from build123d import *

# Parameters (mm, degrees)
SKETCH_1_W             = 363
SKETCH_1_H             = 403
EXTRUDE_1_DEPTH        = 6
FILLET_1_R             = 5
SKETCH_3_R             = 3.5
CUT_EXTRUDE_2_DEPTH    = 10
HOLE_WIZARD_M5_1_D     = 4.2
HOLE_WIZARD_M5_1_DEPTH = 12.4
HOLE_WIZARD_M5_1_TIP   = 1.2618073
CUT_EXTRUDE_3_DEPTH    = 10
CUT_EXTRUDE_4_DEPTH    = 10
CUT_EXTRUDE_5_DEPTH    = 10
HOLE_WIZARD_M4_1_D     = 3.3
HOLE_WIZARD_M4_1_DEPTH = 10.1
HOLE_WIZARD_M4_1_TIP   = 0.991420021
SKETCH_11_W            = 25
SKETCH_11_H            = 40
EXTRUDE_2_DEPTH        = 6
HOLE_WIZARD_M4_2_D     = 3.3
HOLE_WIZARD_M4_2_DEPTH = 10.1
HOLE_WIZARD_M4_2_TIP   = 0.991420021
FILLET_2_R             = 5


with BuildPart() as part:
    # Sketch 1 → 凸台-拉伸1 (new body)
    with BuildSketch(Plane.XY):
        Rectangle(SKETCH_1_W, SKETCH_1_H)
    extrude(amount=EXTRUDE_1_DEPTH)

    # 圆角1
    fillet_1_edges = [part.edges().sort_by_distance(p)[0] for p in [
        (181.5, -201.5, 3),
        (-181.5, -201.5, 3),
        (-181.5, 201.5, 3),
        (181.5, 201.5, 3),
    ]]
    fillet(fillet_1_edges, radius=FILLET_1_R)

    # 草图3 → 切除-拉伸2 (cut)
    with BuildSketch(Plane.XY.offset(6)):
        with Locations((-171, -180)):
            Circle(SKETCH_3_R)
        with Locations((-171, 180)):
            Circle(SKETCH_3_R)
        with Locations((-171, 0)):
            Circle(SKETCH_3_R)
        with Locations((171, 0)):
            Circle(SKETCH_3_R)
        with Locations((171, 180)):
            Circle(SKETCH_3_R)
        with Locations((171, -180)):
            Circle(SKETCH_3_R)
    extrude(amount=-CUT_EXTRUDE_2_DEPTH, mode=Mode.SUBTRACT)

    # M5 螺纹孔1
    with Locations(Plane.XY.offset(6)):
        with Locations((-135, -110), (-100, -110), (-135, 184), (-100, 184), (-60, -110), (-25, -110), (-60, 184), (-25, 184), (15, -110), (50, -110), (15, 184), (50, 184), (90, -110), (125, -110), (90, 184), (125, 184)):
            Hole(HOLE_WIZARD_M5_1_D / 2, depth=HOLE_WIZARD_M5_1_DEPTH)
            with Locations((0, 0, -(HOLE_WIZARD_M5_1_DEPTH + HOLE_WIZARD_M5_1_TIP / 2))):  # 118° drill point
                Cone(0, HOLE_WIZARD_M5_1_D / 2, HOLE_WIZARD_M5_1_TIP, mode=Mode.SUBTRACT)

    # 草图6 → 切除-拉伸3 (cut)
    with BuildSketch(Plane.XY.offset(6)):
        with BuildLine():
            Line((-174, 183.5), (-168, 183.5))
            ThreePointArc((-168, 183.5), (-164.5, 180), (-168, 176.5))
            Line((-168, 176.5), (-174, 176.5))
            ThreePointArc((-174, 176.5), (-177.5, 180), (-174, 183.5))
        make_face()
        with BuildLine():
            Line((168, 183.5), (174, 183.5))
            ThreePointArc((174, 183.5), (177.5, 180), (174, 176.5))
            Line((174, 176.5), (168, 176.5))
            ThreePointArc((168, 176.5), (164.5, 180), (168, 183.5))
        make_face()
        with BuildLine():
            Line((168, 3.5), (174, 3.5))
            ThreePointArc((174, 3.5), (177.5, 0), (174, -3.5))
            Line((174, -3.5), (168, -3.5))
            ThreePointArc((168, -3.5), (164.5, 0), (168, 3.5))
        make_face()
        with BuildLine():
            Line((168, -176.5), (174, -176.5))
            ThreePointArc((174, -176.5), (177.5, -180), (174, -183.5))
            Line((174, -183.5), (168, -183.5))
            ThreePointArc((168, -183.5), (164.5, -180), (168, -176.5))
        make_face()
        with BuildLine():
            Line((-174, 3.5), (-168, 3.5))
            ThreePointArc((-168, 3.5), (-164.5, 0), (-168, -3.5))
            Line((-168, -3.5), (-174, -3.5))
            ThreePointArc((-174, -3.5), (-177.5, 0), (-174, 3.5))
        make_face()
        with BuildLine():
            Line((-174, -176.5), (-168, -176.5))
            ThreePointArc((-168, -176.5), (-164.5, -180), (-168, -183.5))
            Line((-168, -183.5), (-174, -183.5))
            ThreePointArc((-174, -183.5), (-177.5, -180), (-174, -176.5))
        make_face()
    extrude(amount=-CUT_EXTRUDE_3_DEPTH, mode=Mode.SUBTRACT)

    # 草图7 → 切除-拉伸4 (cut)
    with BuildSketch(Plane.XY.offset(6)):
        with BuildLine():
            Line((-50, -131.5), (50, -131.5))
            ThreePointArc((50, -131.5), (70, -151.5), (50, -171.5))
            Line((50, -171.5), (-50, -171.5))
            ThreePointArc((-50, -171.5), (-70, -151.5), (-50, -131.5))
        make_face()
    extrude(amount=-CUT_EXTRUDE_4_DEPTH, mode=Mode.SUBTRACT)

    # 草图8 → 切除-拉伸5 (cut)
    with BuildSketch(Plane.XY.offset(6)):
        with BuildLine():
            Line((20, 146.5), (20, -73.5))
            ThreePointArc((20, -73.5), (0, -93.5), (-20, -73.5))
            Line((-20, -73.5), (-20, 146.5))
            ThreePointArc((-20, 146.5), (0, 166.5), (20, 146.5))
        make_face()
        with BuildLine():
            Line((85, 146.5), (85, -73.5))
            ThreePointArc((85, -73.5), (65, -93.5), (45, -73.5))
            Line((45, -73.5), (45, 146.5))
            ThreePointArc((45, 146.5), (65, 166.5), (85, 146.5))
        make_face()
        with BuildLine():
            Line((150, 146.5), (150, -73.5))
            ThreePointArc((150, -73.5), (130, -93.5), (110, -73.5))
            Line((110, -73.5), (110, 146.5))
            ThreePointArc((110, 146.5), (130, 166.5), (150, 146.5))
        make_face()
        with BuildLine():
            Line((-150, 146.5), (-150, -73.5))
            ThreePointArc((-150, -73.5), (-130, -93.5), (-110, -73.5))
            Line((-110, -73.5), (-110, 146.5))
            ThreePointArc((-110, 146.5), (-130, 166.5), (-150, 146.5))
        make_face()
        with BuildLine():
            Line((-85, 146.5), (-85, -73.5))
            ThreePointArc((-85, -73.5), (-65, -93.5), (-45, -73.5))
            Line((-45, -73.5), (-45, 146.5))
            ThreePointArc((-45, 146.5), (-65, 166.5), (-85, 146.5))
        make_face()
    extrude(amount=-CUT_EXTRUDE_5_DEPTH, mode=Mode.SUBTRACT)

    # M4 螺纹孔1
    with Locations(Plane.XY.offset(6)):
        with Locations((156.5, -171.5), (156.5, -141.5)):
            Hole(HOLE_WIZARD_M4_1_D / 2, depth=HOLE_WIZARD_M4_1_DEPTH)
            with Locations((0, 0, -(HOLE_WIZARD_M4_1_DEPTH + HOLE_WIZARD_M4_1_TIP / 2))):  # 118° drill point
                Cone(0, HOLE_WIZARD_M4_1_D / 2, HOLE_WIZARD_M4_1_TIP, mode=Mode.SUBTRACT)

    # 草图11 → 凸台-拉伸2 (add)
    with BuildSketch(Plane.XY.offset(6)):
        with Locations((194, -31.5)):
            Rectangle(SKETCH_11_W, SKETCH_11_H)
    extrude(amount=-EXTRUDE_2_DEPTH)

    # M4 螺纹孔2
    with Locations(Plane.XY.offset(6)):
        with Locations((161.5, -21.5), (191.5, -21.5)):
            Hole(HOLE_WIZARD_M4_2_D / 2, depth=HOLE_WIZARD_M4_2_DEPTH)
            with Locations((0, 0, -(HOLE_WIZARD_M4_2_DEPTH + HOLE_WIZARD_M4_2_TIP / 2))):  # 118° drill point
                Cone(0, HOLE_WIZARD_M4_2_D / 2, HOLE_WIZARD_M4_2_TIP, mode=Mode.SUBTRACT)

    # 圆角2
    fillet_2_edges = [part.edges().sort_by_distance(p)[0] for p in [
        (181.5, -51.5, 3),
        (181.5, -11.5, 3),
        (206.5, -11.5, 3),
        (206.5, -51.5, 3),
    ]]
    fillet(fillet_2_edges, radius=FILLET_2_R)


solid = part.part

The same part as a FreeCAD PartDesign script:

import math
import FreeCAD as App
import Part
import Sketcher
Q = App.Units.Quantity


def edges_at(feature, points):
    """Names of the edges that pass closest to the given points."""
    edges = feature.Shape.Edges
    near = lambda p: min(range(len(edges)), key=lambda i: edges[i].distToShape(Part.Vertex(*p))[0])
    return sorted({f"Edge{near(p) + 1}" for p in points})

doc = App.newDocument("Part")
body = doc.addObject("PartDesign::Body", "Body")

# Sketch on XY plane
sketch1 = doc.addObject("Sketcher::SketchObject", "Sketch")
body.addObject(sketch1)
sketch1.AttachmentSupport = (doc.XY_Plane, [""])
sketch1.MapMode = "FlatFace"
sketch1.addGeometry([
    Part.LineSegment(App.Vector(-182, 202, 0), App.Vector(-182, -202, 0)),
    Part.LineSegment(App.Vector(-182, -202, 0), App.Vector(182, -202, 0)),
    Part.LineSegment(App.Vector(182, -202, 0), App.Vector(182, 202, 0)),
    Part.LineSegment(App.Vector(182, 202, 0), App.Vector(-182, 202, 0)),
], False)
sketch1.addConstraint([
    Sketcher.Constraint("Coincident", 0, 2, 1, 1),
    Sketcher.Constraint("Coincident", 1, 2, 2, 1),
    Sketcher.Constraint("Coincident", 2, 2, 3, 1),
    Sketcher.Constraint("Coincident", 3, 2, 0, 1),
    Sketcher.Constraint("Vertical", 0),
    Sketcher.Constraint("Horizontal", 1),
    Sketcher.Constraint("Vertical", 2),
    Sketcher.Constraint("Horizontal", 3),
    Sketcher.Constraint("Symmetric", 0, 2, 2, 2, -1, 1),
    Sketcher.Constraint("DistanceX", 1, 1, 1, 2, Q("363 mm")),
    Sketcher.Constraint("DistanceY", 0, 2, 0, 1, Q("403 mm")),
])
pad1 = doc.addObject("PartDesign::Pad", "Pad")
body.addObject(pad1)
pad1.Profile = sketch1
pad1.Length = 6
doc.recompute()

fillet = doc.addObject("PartDesign::Fillet", "Fillet")
body.addObject(fillet)
fillet.Base = (pad1, edges_at(pad1, [
    (181.5, -201.5, 3),
    (-181.5, -201.5, 3),
    (-181.5, 201.5, 3),
    (181.5, 201.5, 3),
]))
fillet.Radius = 5

# Sketch on XY plane
sketch2 = doc.addObject("Sketcher::SketchObject", "Sketch001")
body.addObject(sketch2)
sketch2.AttachmentSupport = (doc.XY_Plane, [""])
sketch2.MapMode = "FlatFace"
sketch2.AttachmentOffset = App.Placement(App.Vector(0, 0, 6), App.Rotation())
sketch2.addGeometry([
    Part.Circle(App.Vector(-171, -180, 0), App.Vector(0, 0, 1), 3.5),  # 0
    Part.Circle(App.Vector(-171, 180, 0), App.Vector(0, 0, 1), 3.5),  # 1
    Part.Circle(App.Vector(-171, 0, 0), App.Vector(0, 0, 1), 3.5),  # 2
    Part.Circle(App.Vector(171, 0, 0), App.Vector(0, 0, 1), 3.5),  # 3
    Part.Circle(App.Vector(171, 180, 0), App.Vector(0, 0, 1), 3.5),  # 4
    Part.Circle(App.Vector(171, -180, 0), App.Vector(0, 0, 1), 3.5),  # 5
], False)
sketch2.addConstraint([
    Sketcher.Constraint("Equal", 0, 1),
    Sketcher.Constraint("Equal", 1, 2),
    Sketcher.Constraint("Equal", 2, 3),
    Sketcher.Constraint("Equal", 3, 4),
    Sketcher.Constraint("Equal", 4, 5),
    Sketcher.Constraint("Symmetric", 2, 3, 3, 3, -1, 1),
    Sketcher.Constraint("Symmetric", 0, 3, 4, 3, -1, 1),
    Sketcher.Constraint("Symmetric", 1, 3, 5, 3, -1, 1),
    Sketcher.Constraint("Symmetric", 1, 3, 4, 3, -2),
    Sketcher.Constraint("PointOnObject", 2, 3, -1),
    Sketcher.Constraint("Vertical", 1, 3, 2, 3),
    Sketcher.Constraint("Diameter", 0, Q("7 mm")),
    Sketcher.Constraint("DistanceX", 0, 3, -1, 1, Q("171 mm")),
    Sketcher.Constraint("DistanceY", 0, 3, -1, 1, Q("180 mm")),
])
pocket1 = doc.addObject("PartDesign::Pocket", "Pocket")
body.addObject(pocket1)
pocket1.Profile = sketch2
pocket1.Length = 10

# Sketch on XY plane
sketch3 = doc.addObject("Sketcher::SketchObject", "Sketch002")
body.addObject(sketch3)
sketch3.AttachmentSupport = (doc.XY_Plane, [""])
sketch3.MapMode = "FlatFace"
sketch3.AttachmentOffset = App.Placement(App.Vector(0, 0, 6), App.Rotation())
sketch3.addGeometry([
    Part.Circle(App.Vector(-135, -110, 0), App.Vector(0, 0, 1), 2.1),  # 0
    Part.Circle(App.Vector(-100, -110, 0), App.Vector(0, 0, 1), 2.1),  # 1
    Part.Circle(App.Vector(-135, 184, 0), App.Vector(0, 0, 1), 2.1),  # 2
    Part.Circle(App.Vector(-100, 184, 0), App.Vector(0, 0, 1), 2.1),  # 3
    Part.Circle(App.Vector(-60, -110, 0), App.Vector(0, 0, 1), 2.1),  # 4
    Part.Circle(App.Vector(-25, -110, 0), App.Vector(0, 0, 1), 2.1),  # 5
    Part.Circle(App.Vector(-60, 184, 0), App.Vector(0, 0, 1), 2.1),  # 6
    Part.Circle(App.Vector(-25, 184, 0), App.Vector(0, 0, 1), 2.1),  # 7
    Part.Circle(App.Vector(15, -110, 0), App.Vector(0, 0, 1), 2.1),  # 8
    Part.Circle(App.Vector(50, -110, 0), App.Vector(0, 0, 1), 2.1),  # 9
    Part.Circle(App.Vector(15, 184, 0), App.Vector(0, 0, 1), 2.1),  # 10
    Part.Circle(App.Vector(50, 184, 0), App.Vector(0, 0, 1), 2.1),  # 11
    Part.Circle(App.Vector(90, -110, 0), App.Vector(0, 0, 1), 2.1),  # 12
    Part.Circle(App.Vector(125, -110, 0), App.Vector(0, 0, 1), 2.1),  # 13
    Part.Circle(App.Vector(90, 184, 0), App.Vector(0, 0, 1), 2.1),  # 14
    Part.Circle(App.Vector(125, 184, 0), App.Vector(0, 0, 1), 2.1),  # 15
], False)
sketch3.addConstraint([
    Sketcher.Constraint("Equal", 0, 1),
    Sketcher.Constraint("Equal", 1, 2),
    Sketcher.Constraint("Equal", 2, 3),
    Sketcher.Constraint("Equal", 3, 4),
    Sketcher.Constraint("Equal", 4, 5),
    Sketcher.Constraint("Equal", 5, 6),
    Sketcher.Constraint("Equal", 6, 7),
    Sketcher.Constraint("Equal", 7, 8),
    Sketcher.Constraint("Equal", 8, 9),
    Sketcher.Constraint("Equal", 9, 10),
    Sketcher.Constraint("Equal", 10, 11),
    Sketcher.Constraint("Equal", 11, 12),
    Sketcher.Constraint("Equal", 12, 13),
    Sketcher.Constraint("Equal", 13, 14),
    Sketcher.Constraint("Equal", 14, 15),
    Sketcher.Constraint("Horizontal", 0, 3, 1, 3),
    Sketcher.Constraint("Horizontal", 2, 3, 3, 3),
    Sketcher.Constraint("Horizontal", 1, 3, 4, 3),
    Sketcher.Constraint("Horizontal", 4, 3, 5, 3),
    Sketcher.Constraint("Horizontal", 3, 3, 6, 3),
    Sketcher.Constraint("Horizontal", 6, 3, 7, 3),
    Sketcher.Constraint("Horizontal", 5, 3, 8, 3),
    Sketcher.Constraint("Horizontal", 8, 3, 9, 3),
    Sketcher.Constraint("Horizontal", 7, 3, 10, 3),
    Sketcher.Constraint("Horizontal", 10, 3, 11, 3),
    Sketcher.Constraint("Horizontal", 9, 3, 12, 3),
    Sketcher.Constraint("Horizontal", 12, 3, 13, 3),
    Sketcher.Constraint("Horizontal", 11, 3, 14, 3),
    Sketcher.Constraint("Horizontal", 14, 3, 15, 3),
    Sketcher.Constraint("Vertical", 0, 3, 2, 3),
    Sketcher.Constraint("Vertical", 1, 3, 3, 3),
    Sketcher.Constraint("Vertical", 4, 3, 6, 3),
    Sketcher.Constraint("Vertical", 5, 3, 7, 3),
    Sketcher.Constraint("Vertical", 8, 3, 10, 3),
    Sketcher.Constraint("Vertical", 9, 3, 11, 3),
    Sketcher.Constraint("Vertical", 12, 3, 14, 3),
    Sketcher.Constraint("Vertical", 13, 3, 15, 3),
    Sketcher.Constraint("Diameter", 0, Q("4.2 mm")),
    Sketcher.Constraint("DistanceX", 0, 3, -1, 1, Q("135 mm")),
    Sketcher.Constraint("DistanceY", 0, 3, -1, 1, Q("110 mm")),
    Sketcher.Constraint("DistanceX", 1, 3, -1, 1, Q("100 mm")),
    Sketcher.Constraint("DistanceY", -1, 1, 2, 3, Q("184 mm")),
    Sketcher.Constraint("DistanceX", 4, 3, -1, 1, Q("60 mm")),
    Sketcher.Constraint("DistanceX", 5, 3, -1, 1, Q("25 mm")),
    Sketcher.Constraint("DistanceX", -1, 1, 8, 3, Q("15 mm")),
    Sketcher.Constraint("DistanceX", -1, 1, 9, 3, Q("50 mm")),
    Sketcher.Constraint("DistanceX", -1, 1, 12, 3, Q("90 mm")),
    Sketcher.Constraint("DistanceX", -1, 1, 13, 3, Q("125 mm")),
])
doc.recompute()
hole = doc.addObject("PartDesign::Hole", "Hole")
body.addObject(hole)
hole.Profile = sketch3
hole.ThreadType = "None"
hole.Diameter = 4.2
hole.DepthType = "Dimension"
hole.Depth = 12.4
hole.DrillPoint = "Angled"
hole.DrillPointAngle = 118

# Sketch on XY plane
sketch4 = doc.addObject("Sketcher::SketchObject", "Sketch003")
body.addObject(sketch4)
sketch4.AttachmentSupport = (doc.XY_Plane, [""])
sketch4.MapMode = "FlatFace"
sketch4.AttachmentOffset = App.Placement(App.Vector(0, 0, 6), App.Rotation())
sketch4.addGeometry([
    Part.LineSegment(App.Vector(-168, 183.5, 0), App.Vector(-174, 183.5, 0)),  # 0
    Part.ArcOfCircle(Part.Circle(App.Vector(-174, 180, 0), App.Vector(0, 0, 1), 3.5), math.radians(90), math.radians(270)),  # 1
    Part.LineSegment(App.Vector(-174, 176.5, 0), App.Vector(-168, 176.5, 0)),  # 2
    Part.ArcOfCircle(Part.Circle(App.Vector(-168, 180, 0), App.Vector(0, 0, 1), 3.5), math.radians(-90), math.radians(90)),  # 3
    Part.LineSegment(App.Vector(174, 183.5, 0), App.Vector(168, 183.5, 0)),  # 4
    Part.ArcOfCircle(Part.Circle(App.Vector(168, 180, 0), App.Vector(0, 0, 1), 3.5), math.radians(90), math.radians(270)),  # 5
    Part.LineSegment(App.Vector(168, 176.5, 0), App.Vector(174, 176.5, 0)),  # 6
    Part.ArcOfCircle(Part.Circle(App.Vector(174, 180, 0), App.Vector(0, 0, 1), 3.5), math.radians(-90), math.radians(90)),  # 7
    Part.LineSegment(App.Vector(174, 3.5, 0), App.Vector(168, 3.5, 0)),  # 8
    Part.ArcOfCircle(Part.Circle(App.Vector(168, 0, 0), App.Vector(0, 0, 1), 3.5), math.radians(90), math.radians(270)),  # 9
    Part.LineSegment(App.Vector(168, -3.5, 0), App.Vector(174, -3.5, 0)),  # 10
    Part.ArcOfCircle(Part.Circle(App.Vector(174, 0, 0), App.Vector(0, 0, 1), 3.5), math.radians(-90), math.radians(90)),  # 11
    Part.LineSegment(App.Vector(174, -176.5, 0), App.Vector(168, -176.5, 0)),  # 12
    Part.ArcOfCircle(Part.Circle(App.Vector(168, -180, 0), App.Vector(0, 0, 1), 3.5), math.radians(90), math.radians(270)),  # 13
    Part.LineSegment(App.Vector(168, -183.5, 0), App.Vector(174, -183.5, 0)),  # 14
    Part.ArcOfCircle(Part.Circle(App.Vector(174, -180, 0), App.Vector(0, 0, 1), 3.5), math.radians(-90), math.radians(90)),  # 15
    Part.LineSegment(App.Vector(-168, 3.5, 0), App.Vector(-174, 3.5, 0)),  # 16
    Part.ArcOfCircle(Part.Circle(App.Vector(-174, 0, 0), App.Vector(0, 0, 1), 3.5), math.radians(90), math.radians(270)),  # 17
    Part.LineSegment(App.Vector(-174, -3.5, 0), App.Vector(-168, -3.5, 0)),  # 18
    Part.ArcOfCircle(Part.Circle(App.Vector(-168, 0, 0), App.Vector(0, 0, 1), 3.5), math.radians(-90), math.radians(90)),  # 19
    Part.LineSegment(App.Vector(-168, -176.5, 0), App.Vector(-174, -176.5, 0)),  # 20
    Part.ArcOfCircle(Part.Circle(App.Vector(-174, -180, 0), App.Vector(0, 0, 1), 3.5), math.radians(90), math.radians(270)),  # 21
    Part.LineSegment(App.Vector(-174, -183.5, 0), App.Vector(-168, -183.5, 0)),  # 22
    Part.ArcOfCircle(Part.Circle(App.Vector(-168, -180, 0), App.Vector(0, 0, 1), 3.5), math.radians(-90), math.radians(90)),  # 23
], False)
sketch4.addConstraint([
    Sketcher.Constraint("Tangent", 0, 2, 1, 1),
    Sketcher.Constraint("Tangent", 1, 2, 2, 1),
    Sketcher.Constraint("Tangent", 2, 2, 3, 1),
    Sketcher.Constraint("Tangent", 3, 2, 0, 1),
    Sketcher.Constraint("Tangent", 4, 2, 5, 1),
    Sketcher.Constraint("Tangent", 5, 2, 6, 1),
    Sketcher.Constraint("Tangent", 6, 2, 7, 1),
    Sketcher.Constraint("Tangent", 7, 2, 4, 1),
    Sketcher.Constraint("Tangent", 8, 2, 9, 1),
    Sketcher.Constraint("Tangent", 9, 2, 10, 1),
    Sketcher.Constraint("Tangent", 10, 2, 11, 1),
    Sketcher.Constraint("Tangent", 11, 2, 8, 1),
    Sketcher.Constraint("Tangent", 12, 2, 13, 1),
    Sketcher.Constraint("Tangent", 13, 2, 14, 1),
    Sketcher.Constraint("Tangent", 14, 2, 15, 1),
    Sketcher.Constraint("Tangent", 15, 2, 12, 1),
    Sketcher.Constraint("Tangent", 16, 2, 17, 1),
    Sketcher.Constraint("Tangent", 17, 2, 18, 1),
    Sketcher.Constraint("Tangent", 18, 2, 19, 1),
    Sketcher.Constraint("Tangent", 19, 2, 16, 1),
    Sketcher.Constraint("Tangent", 20, 2, 21, 1),
    Sketcher.Constraint("Tangent", 21, 2, 22, 1),
    Sketcher.Constraint("Tangent", 22, 2, 23, 1),
    Sketcher.Constraint("Tangent", 23, 2, 20, 1),
    Sketcher.Constraint("Horizontal", 0),
    Sketcher.Constraint("Horizontal", 2),
    Sketcher.Constraint("Horizontal", 4),
    Sketcher.Constraint("Horizontal", 6),
    Sketcher.Constraint("Horizontal", 8),
    Sketcher.Constraint("Horizontal", 10),
    Sketcher.Constraint("Horizontal", 12),
    Sketcher.Constraint("Horizontal", 14),
    Sketcher.Constraint("Horizontal", 16),
    Sketcher.Constraint("Horizontal", 18),
    Sketcher.Constraint("Horizontal", 20),
    Sketcher.Constraint("Horizontal", 22),
    Sketcher.Constraint("Equal", 3, 5),
    Sketcher.Constraint("Equal", 7, 9),
    Sketcher.Constraint("Equal", 11, 13),
    Sketcher.Constraint("Equal", 15, 17),
    Sketcher.Constraint("Equal", 19, 21),
    Sketcher.Constraint("Symmetric", 3, 3, 13, 3, -1, 1),
    Sketcher.Constraint("Symmetric", 11, 3, 17, 3, -1, 1),
    Sketcher.Constraint("Symmetric", 7, 3, 21, 3, -1, 1),
    Sketcher.Constraint("Symmetric", 3, 3, 5, 3, -2),
    Sketcher.Constraint("Symmetric", 9, 3, 19, 3, -2),
    Sketcher.Constraint("Vertical", 5, 3, 9, 3),
    Sketcher.Constraint("Vertical", 7, 3, 11, 3),
    Sketcher.Constraint("Vertical", 11, 3, 15, 3),
    Sketcher.Constraint("Vertical", 1, 3, 17, 3),
    Sketcher.Constraint("Vertical", 19, 3, 23, 3),
    Sketcher.Constraint("Radius", 1, Q("3.5 mm")),
    Sketcher.Constraint("DistanceX", 0, 2, 0, 1, Q("6 mm")),
    Sketcher.Constraint("DistanceX", 1, 3, -1, 1, Q("174 mm")),
    Sketcher.Constraint("DistanceY", -1, 1, 1, 3, Q("180 mm")),
])
pocket2 = doc.addObject("PartDesign::Pocket", "Pocket001")
body.addObject(pocket2)
pocket2.Profile = sketch4
pocket2.Length = 10

# Sketch on XY plane
sketch5 = doc.addObject("Sketcher::SketchObject", "Sketch004")
body.addObject(sketch5)
sketch5.AttachmentSupport = (doc.XY_Plane, [""])
sketch5.MapMode = "FlatFace"
sketch5.AttachmentOffset = App.Placement(App.Vector(0, 0, 6), App.Rotation())
sketch5.addGeometry([
    Part.LineSegment(App.Vector(50, -132, 0), App.Vector(-50, -132, 0)),
    Part.ArcOfCircle(Part.Circle(App.Vector(-50, -152, 0), App.Vector(0, 0, 1), 20), math.radians(90), math.radians(270)),
    Part.LineSegment(App.Vector(-50, -172, 0), App.Vector(50, -172, 0)),
    Part.ArcOfCircle(Part.Circle(App.Vector(50, -152, 0), App.Vector(0, 0, 1), 20), math.radians(-90), math.radians(90)),
], False)
sketch5.addConstraint([
    Sketcher.Constraint("Tangent", 0, 2, 1, 1),
    Sketcher.Constraint("Tangent", 1, 2, 2, 1),
    Sketcher.Constraint("Tangent", 2, 2, 3, 1),
    Sketcher.Constraint("Tangent", 3, 2, 0, 1),
    Sketcher.Constraint("Horizontal", 0),
    Sketcher.Constraint("Horizontal", 2),
    Sketcher.Constraint("Radius", 1, Q("20 mm")),
    Sketcher.Constraint("DistanceX", 0, 2, 0, 1, Q("100 mm")),
    Sketcher.Constraint("DistanceX", 1, 3, -1, 1, Q("50 mm")),
    Sketcher.Constraint("DistanceY", 1, 3, -1, 1, Q("151.5 mm")),
])
pocket3 = doc.addObject("PartDesign::Pocket", "Pocket002")
body.addObject(pocket3)
pocket3.Profile = sketch5
pocket3.Length = 10

# Sketch on XY plane
sketch6 = doc.addObject("Sketcher::SketchObject", "Sketch005")
body.addObject(sketch6)
sketch6.AttachmentSupport = (doc.XY_Plane, [""])
sketch6.MapMode = "FlatFace"
sketch6.AttachmentOffset = App.Placement(App.Vector(0, 0, 6), App.Rotation())
sketch6.addGeometry([
    Part.LineSegment(App.Vector(20, -74, 0), App.Vector(20, 146, 0)),  # 0
    Part.ArcOfCircle(Part.Circle(App.Vector(0, 146, 0), App.Vector(0, 0, 1), 20), math.radians(0), math.radians(180)),  # 1
    Part.LineSegment(App.Vector(-20, 146, 0), App.Vector(-20, -74, 0)),  # 2
    Part.ArcOfCircle(Part.Circle(App.Vector(0, -74, 0), App.Vector(0, 0, 1), 20), math.radians(180), math.radians(360)),  # 3
    Part.LineSegment(App.Vector(85, -74, 0), App.Vector(85, 146, 0)),  # 4
    Part.ArcOfCircle(Part.Circle(App.Vector(65, 146, 0), App.Vector(0, 0, 1), 20), math.radians(0), math.radians(180)),  # 5
    Part.LineSegment(App.Vector(45, 146, 0), App.Vector(45, -74, 0)),  # 6
    Part.ArcOfCircle(Part.Circle(App.Vector(65, -74, 0), App.Vector(0, 0, 1), 20), math.radians(180), math.radians(360)),  # 7
    Part.LineSegment(App.Vector(150, -74, 0), App.Vector(150, 146, 0)),  # 8
    Part.ArcOfCircle(Part.Circle(App.Vector(130, 146, 0), App.Vector(0, 0, 1), 20), math.radians(0), math.radians(180)),  # 9
    Part.LineSegment(App.Vector(110, 146, 0), App.Vector(110, -74, 0)),  # 10
    Part.ArcOfCircle(Part.Circle(App.Vector(130, -74, 0), App.Vector(0, 0, 1), 20), math.radians(180), math.radians(360)),  # 11
    Part.LineSegment(App.Vector(-150, 146, 0), App.Vector(-150, -74, 0)),  # 12
    Part.ArcOfCircle(Part.Circle(App.Vector(-130, -74, 0), App.Vector(0, 0, 1), 20), math.radians(180), math.radians(360)),  # 13
    Part.LineSegment(App.Vector(-110, -74, 0), App.Vector(-110, 146, 0)),  # 14
    Part.ArcOfCircle(Part.Circle(App.Vector(-130, 146, 0), App.Vector(0, 0, 1), 20), math.radians(0), math.radians(180)),  # 15
    Part.LineSegment(App.Vector(-85, 146, 0), App.Vector(-85, -74, 0)),  # 16
    Part.ArcOfCircle(Part.Circle(App.Vector(-65, -74, 0), App.Vector(0, 0, 1), 20), math.radians(180), math.radians(360)),  # 17
    Part.LineSegment(App.Vector(-45, -74, 0), App.Vector(-45, 146, 0)),  # 18
    Part.ArcOfCircle(Part.Circle(App.Vector(-65, 146, 0), App.Vector(0, 0, 1), 20), math.radians(0), math.radians(180)),  # 19
], False)
sketch6.addConstraint([
    Sketcher.Constraint("Tangent", 0, 2, 1, 1),
    Sketcher.Constraint("Tangent", 1, 2, 2, 1),
    Sketcher.Constraint("Tangent", 2, 2, 3, 1),
    Sketcher.Constraint("Tangent", 3, 2, 0, 1),
    Sketcher.Constraint("Tangent", 4, 2, 5, 1),
    Sketcher.Constraint("Tangent", 5, 2, 6, 1),
    Sketcher.Constraint("Tangent", 6, 2, 7, 1),
    Sketcher.Constraint("Tangent", 7, 2, 4, 1),
    Sketcher.Constraint("Tangent", 8, 2, 9, 1),
    Sketcher.Constraint("Tangent", 9, 2, 10, 1),
    Sketcher.Constraint("Tangent", 10, 2, 11, 1),
    Sketcher.Constraint("Tangent", 11, 2, 8, 1),
    Sketcher.Constraint("Tangent", 12, 2, 13, 1),
    Sketcher.Constraint("Tangent", 13, 2, 14, 1),
    Sketcher.Constraint("Tangent", 14, 2, 15, 1),
    Sketcher.Constraint("Tangent", 15, 2, 12, 1),
    Sketcher.Constraint("Tangent", 16, 2, 17, 1),
    Sketcher.Constraint("Tangent", 17, 2, 18, 1),
    Sketcher.Constraint("Tangent", 18, 2, 19, 1),
    Sketcher.Constraint("Tangent", 19, 2, 16, 1),
    Sketcher.Constraint("Vertical", 0),
    Sketcher.Constraint("Vertical", 2),
    Sketcher.Constraint("Vertical", 4),
    Sketcher.Constraint("Vertical", 6),
    Sketcher.Constraint("Vertical", 8),
    Sketcher.Constraint("Vertical", 10),
    Sketcher.Constraint("Vertical", 12),
    Sketcher.Constraint("Vertical", 14),
    Sketcher.Constraint("Vertical", 16),
    Sketcher.Constraint("Vertical", 18),
    Sketcher.Constraint("Equal", 3, 5),
    Sketcher.Constraint("Equal", 7, 9),
    Sketcher.Constraint("Equal", 11, 13),
    Sketcher.Constraint("Equal", 15, 17),
    Sketcher.Constraint("Symmetric", 11, 3, 13, 3, -2),
    Sketcher.Constraint("Symmetric", 7, 3, 17, 3, -2),
    Sketcher.Constraint("PointOnObject", 1, 3, -2),
    Sketcher.Constraint("Horizontal", 1, 3, 5, 3),
    Sketcher.Constraint("Horizontal", 3, 3, 7, 3),
    Sketcher.Constraint("Horizontal", 5, 3, 9, 3),
    Sketcher.Constraint("Horizontal", 7, 3, 11, 3),
    Sketcher.Constraint("Horizontal", 9, 3, 15, 3),
    Sketcher.Constraint("Horizontal", 15, 3, 19, 3),
    Sketcher.Constraint("Radius", 1, Q("20 mm")),
    Sketcher.Constraint("DistanceY", 0, 1, 0, 2, Q("220 mm")),
    Sketcher.Constraint("DistanceX", -1, 1, 5, 3, Q("65 mm")),
    Sketcher.Constraint("DistanceX", -1, 1, 9, 3, Q("130 mm")),
    Sketcher.Constraint("DistanceY", -1, 1, 1, 3, Q("146.5 mm")),
])
pocket4 = doc.addObject("PartDesign::Pocket", "Pocket003")
body.addObject(pocket4)
pocket4.Profile = sketch6
pocket4.Length = 10

# Sketch on XY plane
sketch7 = doc.addObject("Sketcher::SketchObject", "Sketch006")
body.addObject(sketch7)
sketch7.AttachmentSupport = (doc.XY_Plane, [""])
sketch7.MapMode = "FlatFace"
sketch7.AttachmentOffset = App.Placement(App.Vector(0, 0, 6), App.Rotation())
sketch7.addGeometry([
    Part.Circle(App.Vector(156.5, -171.5, 0), App.Vector(0, 0, 1), 1.6),
    Part.Circle(App.Vector(156.5, -141.5, 0), App.Vector(0, 0, 1), 1.6),
], False)
sketch7.addConstraint([
    Sketcher.Constraint("Equal", 0, 1),
    Sketcher.Constraint("Vertical", 0, 3, 1, 3),
    Sketcher.Constraint("Diameter", 0, Q("3.3 mm")),
    Sketcher.Constraint("DistanceY", 0, 3, 1, 3, Q("30 mm")),
    Sketcher.Constraint("DistanceX", -1, 1, 0, 3, Q("156.5 mm")),
    Sketcher.Constraint("DistanceY", 0, 3, -1, 1, Q("171.5 mm")),
])
doc.recompute()
hole2 = doc.addObject("PartDesign::Hole", "Hole001")
body.addObject(hole2)
hole2.Profile = sketch7
hole2.ThreadType = "None"
hole2.Diameter = 3.3
hole2.DepthType = "Dimension"
hole2.Depth = 10.1
hole2.DrillPoint = "Angled"
hole2.DrillPointAngle = 118

# Sketch on XY plane
sketch8 = doc.addObject("Sketcher::SketchObject", "Sketch007")
body.addObject(sketch8)
sketch8.AttachmentSupport = (doc.XY_Plane, [""])
sketch8.MapMode = "FlatFace"
sketch8.AttachmentOffset = App.Placement(App.Vector(0, 0, 6), App.Rotation())
sketch8.addGeometry([
    Part.LineSegment(App.Vector(182, -12, 0), App.Vector(182, -52, 0)),
    Part.LineSegment(App.Vector(182, -52, 0), App.Vector(206, -52, 0)),
    Part.LineSegment(App.Vector(206, -52, 0), App.Vector(206, -12, 0)),
    Part.LineSegment(App.Vector(206, -12, 0), App.Vector(182, -12, 0)),
], False)
sketch8.addConstraint([
    Sketcher.Constraint("Coincident", 0, 2, 1, 1),
    Sketcher.Constraint("Coincident", 1, 2, 2, 1),
    Sketcher.Constraint("Coincident", 2, 2, 3, 1),
    Sketcher.Constraint("Coincident", 3, 2, 0, 1),
    Sketcher.Constraint("Vertical", 0),
    Sketcher.Constraint("Horizontal", 1),
    Sketcher.Constraint("Vertical", 2),
    Sketcher.Constraint("Horizontal", 3),
    Sketcher.Constraint("DistanceX", 1, 1, 1, 2, Q("25 mm")),
    Sketcher.Constraint("DistanceY", 0, 2, 0, 1, Q("40 mm")),
    Sketcher.Constraint("DistanceX", -1, 1, 0, 2, Q("181.5 mm")),
    Sketcher.Constraint("DistanceY", 0, 2, -1, 1, Q("51.5 mm")),
])
pad2 = doc.addObject("PartDesign::Pad", "Pad001")
body.addObject(pad2)
pad2.Profile = sketch8
pad2.Length = 6
pad2.Reversed = True

# Sketch on XY plane
sketch9 = doc.addObject("Sketcher::SketchObject", "Sketch008")
body.addObject(sketch9)
sketch9.AttachmentSupport = (doc.XY_Plane, [""])
sketch9.MapMode = "FlatFace"
sketch9.AttachmentOffset = App.Placement(App.Vector(0, 0, 6), App.Rotation())
sketch9.addGeometry([
    Part.Circle(App.Vector(161.5, -21.5, 0), App.Vector(0, 0, 1), 1.6),
    Part.Circle(App.Vector(191.5, -21.5, 0), App.Vector(0, 0, 1), 1.6),
], False)
sketch9.addConstraint([
    Sketcher.Constraint("Equal", 0, 1),
    Sketcher.Constraint("Horizontal", 0, 3, 1, 3),
    Sketcher.Constraint("Diameter", 0, Q("3.3 mm")),
    Sketcher.Constraint("DistanceX", 0, 3, 1, 3, Q("30 mm")),
    Sketcher.Constraint("DistanceX", -1, 1, 0, 3, Q("161.5 mm")),
    Sketcher.Constraint("DistanceY", 0, 3, -1, 1, Q("21.5 mm")),
])
doc.recompute()
hole3 = doc.addObject("PartDesign::Hole", "Hole002")
body.addObject(hole3)
hole3.Profile = sketch9
hole3.ThreadType = "None"
hole3.Diameter = 3.3
hole3.DepthType = "Dimension"
hole3.Depth = 10.1
hole3.DrillPoint = "Angled"
hole3.DrillPointAngle = 118
doc.recompute()

fillet2 = doc.addObject("PartDesign::Fillet", "Fillet001")
body.addObject(fillet2)
fillet2.Base = (hole3, edges_at(hole3, [
    (181.5, -51.5, 3),
    (181.5, -11.5, 3),
    (206.5, -11.5, 3),
    (206.5, -51.5, 3),
]))
fillet2.Radius = 5

doc.recompute()
